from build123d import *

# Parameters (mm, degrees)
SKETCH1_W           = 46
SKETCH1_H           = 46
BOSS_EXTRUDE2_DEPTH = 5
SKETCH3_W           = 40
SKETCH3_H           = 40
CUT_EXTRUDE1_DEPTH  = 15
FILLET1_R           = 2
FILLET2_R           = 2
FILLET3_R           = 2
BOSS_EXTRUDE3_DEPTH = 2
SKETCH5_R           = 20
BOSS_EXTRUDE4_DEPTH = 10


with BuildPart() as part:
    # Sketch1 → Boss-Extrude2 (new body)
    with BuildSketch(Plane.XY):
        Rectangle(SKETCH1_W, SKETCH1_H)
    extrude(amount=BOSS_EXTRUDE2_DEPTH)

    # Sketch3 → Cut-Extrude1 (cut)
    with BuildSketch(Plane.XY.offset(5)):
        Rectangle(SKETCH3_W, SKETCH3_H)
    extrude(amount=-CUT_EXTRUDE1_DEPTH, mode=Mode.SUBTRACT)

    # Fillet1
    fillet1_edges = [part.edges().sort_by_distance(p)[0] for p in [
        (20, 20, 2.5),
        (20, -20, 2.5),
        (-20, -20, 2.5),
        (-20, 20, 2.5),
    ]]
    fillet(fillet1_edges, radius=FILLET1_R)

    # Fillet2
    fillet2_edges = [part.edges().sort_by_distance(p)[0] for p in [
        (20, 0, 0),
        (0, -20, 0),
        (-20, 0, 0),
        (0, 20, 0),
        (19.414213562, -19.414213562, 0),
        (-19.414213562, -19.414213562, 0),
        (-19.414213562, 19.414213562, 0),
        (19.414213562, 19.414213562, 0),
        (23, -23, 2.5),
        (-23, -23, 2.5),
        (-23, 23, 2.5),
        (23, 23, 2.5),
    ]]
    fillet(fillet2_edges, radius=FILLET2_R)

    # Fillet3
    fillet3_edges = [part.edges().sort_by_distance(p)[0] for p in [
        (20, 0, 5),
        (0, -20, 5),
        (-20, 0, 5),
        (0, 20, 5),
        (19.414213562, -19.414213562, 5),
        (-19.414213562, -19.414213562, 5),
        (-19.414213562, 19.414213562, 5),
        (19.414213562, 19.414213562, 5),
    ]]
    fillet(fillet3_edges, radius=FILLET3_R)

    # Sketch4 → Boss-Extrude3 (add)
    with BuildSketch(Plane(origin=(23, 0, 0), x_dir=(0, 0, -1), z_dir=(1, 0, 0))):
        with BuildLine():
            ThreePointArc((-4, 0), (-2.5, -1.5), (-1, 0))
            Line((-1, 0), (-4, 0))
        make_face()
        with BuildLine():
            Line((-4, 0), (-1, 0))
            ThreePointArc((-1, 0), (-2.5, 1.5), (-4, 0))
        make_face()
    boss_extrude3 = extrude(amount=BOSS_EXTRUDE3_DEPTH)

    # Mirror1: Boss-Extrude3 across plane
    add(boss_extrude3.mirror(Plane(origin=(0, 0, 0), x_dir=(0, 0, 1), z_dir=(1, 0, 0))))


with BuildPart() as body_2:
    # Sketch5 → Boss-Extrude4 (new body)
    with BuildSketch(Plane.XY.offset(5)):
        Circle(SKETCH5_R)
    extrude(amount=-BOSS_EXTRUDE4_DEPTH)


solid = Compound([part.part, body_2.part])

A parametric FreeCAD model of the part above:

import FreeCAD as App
import Part
import Sketcher
Q = App.Units.Quantity


def edges_at(feature, points):
    """Names of the edges that pass closest to the given points."""
    edges = feature.Shape.Edges
    near = lambda p: min(range(len(edges)), key=lambda i: edges[i].distToShape(Part.Vertex(*p))[0])
    return sorted({f"Edge{near(p) + 1}" for p in points})

doc = App.newDocument("Part")
params = doc.addObject("Spreadsheet::Sheet", "Params")
for row, (alias, value) in enumerate([
    ("sketch1_width", "46 mm"),
    ("pad1_length", "5 mm"),
    ("sketch2_width", "40 mm"),
    ("pocket1_length", "15 mm"),
    ("fillet_radius", "2 mm"),
    ("fillet2_radius", "2 mm"),
    ("fillet3_radius", "2 mm"),
    ("sketch3_diameter", "3 mm"),
    ("pad2_length", "2 mm"),
    ("sketch4_diameter", "40 mm"),
    ("pad3_length", "10 mm"),
], start=1):
    params.set(f"A{row}", alias)
    params.set(f"B{row}", "=" + value)
    params.setAlias(f"B{row}", alias)

body = doc.addObject("PartDesign::Body", "Body")

# Sketch on XY plane
sketch1 = body.newObject("Sketcher::SketchObject", "Sketch")
sketch1.AttachmentSupport = (doc.getObject("XY_Plane"), [""])
sketch1.MapMode = "FlatFace"
sketch1.addGeometry(Part.LineSegment(App.Vector(-23, 23, 0), App.Vector(-23, -23, 0)), False)
sketch1.addGeometry(Part.LineSegment(App.Vector(-23, -23, 0), App.Vector(23, -23, 0)), False)
sketch1.addGeometry(Part.LineSegment(App.Vector(23, -23, 0), App.Vector(23, 23, 0)), False)
sketch1.addGeometry(Part.LineSegment(App.Vector(23, 23, 0), App.Vector(-23, 23, 0)), False)
sketch1.addConstraint(Sketcher.Constraint("Coincident", 0, 2, 1, 1))
sketch1.addConstraint(Sketcher.Constraint("Coincident", 1, 2, 2, 1))
sketch1.addConstraint(Sketcher.Constraint("Coincident", 2, 2, 3, 1))
sketch1.addConstraint(Sketcher.Constraint("Coincident", 3, 2, 0, 1))
sketch1.addConstraint(Sketcher.Constraint("Vertical", 0))
sketch1.addConstraint(Sketcher.Constraint("Horizontal", 1))
sketch1.addConstraint(Sketcher.Constraint("Vertical", 2))
sketch1.addConstraint(Sketcher.Constraint("Horizontal", 3))
sketch1.addConstraint(Sketcher.Constraint("Symmetric", 0, 2, 2, 2, -1, 1))
sketch1.addConstraint(Sketcher.Constraint("Equal", 3, 0))
sketch1.addConstraint(Sketcher.Constraint("DistanceX", 1, 1, 1, 2, Q("46 mm")))
sketch1.setExpression("Constraints[10]", "Params.sketch1_width")
pad1 = body.newObject("PartDesign::Pad", "Pad")
pad1.Profile = sketch1
pad1.setExpression("Length", "Params.pad1_length")

# Sketch on XY plane
sketch2 = body.newObject("Sketcher::SketchObject", "Sketch001")
sketch2.AttachmentSupport = (doc.getObject("XY_Plane"), [""])
sketch2.MapMode = "FlatFace"
sketch2.AttachmentOffset = App.Placement(App.Vector(0, 0, 5), App.Rotation())
sketch2.addGeometry(Part.LineSegment(App.Vector(-20, 20, 0), App.Vector(-20, -20, 0)), False)
sketch2.addGeometry(Part.LineSegment(App.Vector(-20, -20, 0), App.Vector(20, -20, 0)), False)
sketch2.addGeometry(Part.LineSegment(App.Vector(20, -20, 0), App.Vector(20, 20, 0)), False)
sketch2.addGeometry(Part.LineSegment(App.Vector(20, 20, 0), App.Vector(-20, 20, 0)), False)
sketch2.addConstraint(Sketcher.Constraint("Coincident", 0, 2, 1, 1))
sketch2.addConstraint(Sketcher.Constraint("Coincident", 1, 2, 2, 1))
sketch2.addConstraint(Sketcher.Constraint("Coincident", 2, 2, 3, 1))
sketch2.addConstraint(Sketcher.Constraint("Coincident", 3, 2, 0, 1))
sketch2.addConstraint(Sketcher.Constraint("Vertical", 0))
sketch2.addConstraint(Sketcher.Constraint("Horizontal", 1))
sketch2.addConstraint(Sketcher.Constraint("Vertical", 2))
sketch2.addConstraint(Sketcher.Constraint("Horizontal", 3))
sketch2.addConstraint(Sketcher.Constraint("Symmetric", 0, 2, 2, 2, -1, 1))
sketch2.addConstraint(Sketcher.Constraint("Equal", 3, 0))
sketch2.addConstraint(Sketcher.Constraint("DistanceX", 1, 1, 1, 2, Q("40 mm")))
sketch2.setExpression("Constraints[10]", "Params.sketch2_width")
pocket1 = body.newObject("PartDesign::Pocket", "Pocket")
pocket1.Profile = sketch2
pocket1.setExpression("Length", "Params.pocket1_length")
doc.recompute()

fillet = body.newObject("PartDesign::Fillet", "Fillet")
fillet.Base = (pocket1, edges_at(pocket1, [
    (20, 20, 2.5),
    (20, -20, 2.5),
    (-20, -20, 2.5),
    (-20, 20, 2.5),
]))
fillet.setExpression("Radius", "Params.fillet_radius")
doc.recompute()

fillet2 = body.newObject("PartDesign::Fillet", "Fillet001")
fillet2.Base = (fillet, edges_at(fillet, [
    (20, 0, 0),
    (0, -20, 0),
    (-20, 0, 0),
    (0, 20, 0),
    (19.414, -19.414, 0),
    (-19.414, -19.414, 0),
    (-19.414, 19.414, 0),
    (19.414, 19.414, 0),
    (23, -23, 2.5),
    (-23, -23, 2.5),
    (-23, 23, 2.5),
    (23, 23, 2.5),
]))
fillet2.setExpression("Radius", "Params.fillet2_radius")
doc.recompute()

fillet3 = body.newObject("PartDesign::Fillet", "Fillet002")
fillet3.Base = (fillet2, edges_at(fillet2, [
    (20, 0, 5),
    (0, -20, 5),
    (-20, 0, 5),
    (0, 20, 5),
    (19.414, -19.414, 5),
    (-19.414, -19.414, 5),
    (-19.414, 19.414, 5),
    (19.414, 19.414, 5),
]))
fillet3.setExpression("Radius", "Params.fillet3_radius")

# Sketch on YZ plane
sketch3 = body.newObject("Sketcher::SketchObject", "Sketch002")
sketch3.AttachmentSupport = (doc.getObject("YZ_Plane"), [""])
sketch3.MapMode = "FlatFace"
sketch3.AttachmentOffset = App.Placement(App.Vector(0, 0, 23), App.Rotation())
sketch3.addGeometry(Part.Circle(App.Vector(0, 2.5, 0), App.Vector(0, 0, 1), 1.5), False)
sketch3.addConstraint(Sketcher.Constraint("PointOnObject", 0, 3, -2))
sketch3.addConstraint(Sketcher.Constraint("Diameter", 0, Q("3 mm")))
sketch3.addConstraint(Sketcher.Constraint("DistanceY", -1, 1, 0, 3, Q("2.5 mm")))
sketch3.setExpression("Constraints[1]", "Params.sketch3_diameter")
pad2 = body.newObject("PartDesign::Pad", "Pad001")
pad2.Profile = sketch3
pad2.setExpression("Length", "Params.pad2_length")
doc.recompute()

mirrored = body.newObject("PartDesign::Mirrored", "Mirrored")
mirrored.Originals = [pad2]
mirrored.MirrorPlane = (doc.getObject("YZ_Plane"), [""])
body.Tip = mirrored
body2 = doc.addObject("PartDesign::Body", "Body001")

# Sketch on XY plane
sketch4 = body2.newObject("Sketcher::SketchObject", "Sketch003")
sketch4.AttachmentSupport = (doc.getObject("XY_Plane001"), [""])
sketch4.MapMode = "FlatFace"
sketch4.AttachmentOffset = App.Placement(App.Vector(0, 0, 5), App.Rotation())
sketch4.addGeometry(Part.Circle(App.Vector(0, 0, 0), App.Vector(0, 0, 1), 20), False)
sketch4.addConstraint(Sketcher.Constraint("Coincident", 0, 3, -1, 1))
sketch4.addConstraint(Sketcher.Constraint("Diameter", 0, Q("40 mm")))
sketch4.setExpression("Constraints[1]", "Params.sketch4_diameter")
pad3 = body2.newObject("PartDesign::Pad", "Pad002")
pad3.Profile = sketch4
pad3.setExpression("Length", "Params.pad3_length")
pad3.Reversed = True

doc.recompute()
